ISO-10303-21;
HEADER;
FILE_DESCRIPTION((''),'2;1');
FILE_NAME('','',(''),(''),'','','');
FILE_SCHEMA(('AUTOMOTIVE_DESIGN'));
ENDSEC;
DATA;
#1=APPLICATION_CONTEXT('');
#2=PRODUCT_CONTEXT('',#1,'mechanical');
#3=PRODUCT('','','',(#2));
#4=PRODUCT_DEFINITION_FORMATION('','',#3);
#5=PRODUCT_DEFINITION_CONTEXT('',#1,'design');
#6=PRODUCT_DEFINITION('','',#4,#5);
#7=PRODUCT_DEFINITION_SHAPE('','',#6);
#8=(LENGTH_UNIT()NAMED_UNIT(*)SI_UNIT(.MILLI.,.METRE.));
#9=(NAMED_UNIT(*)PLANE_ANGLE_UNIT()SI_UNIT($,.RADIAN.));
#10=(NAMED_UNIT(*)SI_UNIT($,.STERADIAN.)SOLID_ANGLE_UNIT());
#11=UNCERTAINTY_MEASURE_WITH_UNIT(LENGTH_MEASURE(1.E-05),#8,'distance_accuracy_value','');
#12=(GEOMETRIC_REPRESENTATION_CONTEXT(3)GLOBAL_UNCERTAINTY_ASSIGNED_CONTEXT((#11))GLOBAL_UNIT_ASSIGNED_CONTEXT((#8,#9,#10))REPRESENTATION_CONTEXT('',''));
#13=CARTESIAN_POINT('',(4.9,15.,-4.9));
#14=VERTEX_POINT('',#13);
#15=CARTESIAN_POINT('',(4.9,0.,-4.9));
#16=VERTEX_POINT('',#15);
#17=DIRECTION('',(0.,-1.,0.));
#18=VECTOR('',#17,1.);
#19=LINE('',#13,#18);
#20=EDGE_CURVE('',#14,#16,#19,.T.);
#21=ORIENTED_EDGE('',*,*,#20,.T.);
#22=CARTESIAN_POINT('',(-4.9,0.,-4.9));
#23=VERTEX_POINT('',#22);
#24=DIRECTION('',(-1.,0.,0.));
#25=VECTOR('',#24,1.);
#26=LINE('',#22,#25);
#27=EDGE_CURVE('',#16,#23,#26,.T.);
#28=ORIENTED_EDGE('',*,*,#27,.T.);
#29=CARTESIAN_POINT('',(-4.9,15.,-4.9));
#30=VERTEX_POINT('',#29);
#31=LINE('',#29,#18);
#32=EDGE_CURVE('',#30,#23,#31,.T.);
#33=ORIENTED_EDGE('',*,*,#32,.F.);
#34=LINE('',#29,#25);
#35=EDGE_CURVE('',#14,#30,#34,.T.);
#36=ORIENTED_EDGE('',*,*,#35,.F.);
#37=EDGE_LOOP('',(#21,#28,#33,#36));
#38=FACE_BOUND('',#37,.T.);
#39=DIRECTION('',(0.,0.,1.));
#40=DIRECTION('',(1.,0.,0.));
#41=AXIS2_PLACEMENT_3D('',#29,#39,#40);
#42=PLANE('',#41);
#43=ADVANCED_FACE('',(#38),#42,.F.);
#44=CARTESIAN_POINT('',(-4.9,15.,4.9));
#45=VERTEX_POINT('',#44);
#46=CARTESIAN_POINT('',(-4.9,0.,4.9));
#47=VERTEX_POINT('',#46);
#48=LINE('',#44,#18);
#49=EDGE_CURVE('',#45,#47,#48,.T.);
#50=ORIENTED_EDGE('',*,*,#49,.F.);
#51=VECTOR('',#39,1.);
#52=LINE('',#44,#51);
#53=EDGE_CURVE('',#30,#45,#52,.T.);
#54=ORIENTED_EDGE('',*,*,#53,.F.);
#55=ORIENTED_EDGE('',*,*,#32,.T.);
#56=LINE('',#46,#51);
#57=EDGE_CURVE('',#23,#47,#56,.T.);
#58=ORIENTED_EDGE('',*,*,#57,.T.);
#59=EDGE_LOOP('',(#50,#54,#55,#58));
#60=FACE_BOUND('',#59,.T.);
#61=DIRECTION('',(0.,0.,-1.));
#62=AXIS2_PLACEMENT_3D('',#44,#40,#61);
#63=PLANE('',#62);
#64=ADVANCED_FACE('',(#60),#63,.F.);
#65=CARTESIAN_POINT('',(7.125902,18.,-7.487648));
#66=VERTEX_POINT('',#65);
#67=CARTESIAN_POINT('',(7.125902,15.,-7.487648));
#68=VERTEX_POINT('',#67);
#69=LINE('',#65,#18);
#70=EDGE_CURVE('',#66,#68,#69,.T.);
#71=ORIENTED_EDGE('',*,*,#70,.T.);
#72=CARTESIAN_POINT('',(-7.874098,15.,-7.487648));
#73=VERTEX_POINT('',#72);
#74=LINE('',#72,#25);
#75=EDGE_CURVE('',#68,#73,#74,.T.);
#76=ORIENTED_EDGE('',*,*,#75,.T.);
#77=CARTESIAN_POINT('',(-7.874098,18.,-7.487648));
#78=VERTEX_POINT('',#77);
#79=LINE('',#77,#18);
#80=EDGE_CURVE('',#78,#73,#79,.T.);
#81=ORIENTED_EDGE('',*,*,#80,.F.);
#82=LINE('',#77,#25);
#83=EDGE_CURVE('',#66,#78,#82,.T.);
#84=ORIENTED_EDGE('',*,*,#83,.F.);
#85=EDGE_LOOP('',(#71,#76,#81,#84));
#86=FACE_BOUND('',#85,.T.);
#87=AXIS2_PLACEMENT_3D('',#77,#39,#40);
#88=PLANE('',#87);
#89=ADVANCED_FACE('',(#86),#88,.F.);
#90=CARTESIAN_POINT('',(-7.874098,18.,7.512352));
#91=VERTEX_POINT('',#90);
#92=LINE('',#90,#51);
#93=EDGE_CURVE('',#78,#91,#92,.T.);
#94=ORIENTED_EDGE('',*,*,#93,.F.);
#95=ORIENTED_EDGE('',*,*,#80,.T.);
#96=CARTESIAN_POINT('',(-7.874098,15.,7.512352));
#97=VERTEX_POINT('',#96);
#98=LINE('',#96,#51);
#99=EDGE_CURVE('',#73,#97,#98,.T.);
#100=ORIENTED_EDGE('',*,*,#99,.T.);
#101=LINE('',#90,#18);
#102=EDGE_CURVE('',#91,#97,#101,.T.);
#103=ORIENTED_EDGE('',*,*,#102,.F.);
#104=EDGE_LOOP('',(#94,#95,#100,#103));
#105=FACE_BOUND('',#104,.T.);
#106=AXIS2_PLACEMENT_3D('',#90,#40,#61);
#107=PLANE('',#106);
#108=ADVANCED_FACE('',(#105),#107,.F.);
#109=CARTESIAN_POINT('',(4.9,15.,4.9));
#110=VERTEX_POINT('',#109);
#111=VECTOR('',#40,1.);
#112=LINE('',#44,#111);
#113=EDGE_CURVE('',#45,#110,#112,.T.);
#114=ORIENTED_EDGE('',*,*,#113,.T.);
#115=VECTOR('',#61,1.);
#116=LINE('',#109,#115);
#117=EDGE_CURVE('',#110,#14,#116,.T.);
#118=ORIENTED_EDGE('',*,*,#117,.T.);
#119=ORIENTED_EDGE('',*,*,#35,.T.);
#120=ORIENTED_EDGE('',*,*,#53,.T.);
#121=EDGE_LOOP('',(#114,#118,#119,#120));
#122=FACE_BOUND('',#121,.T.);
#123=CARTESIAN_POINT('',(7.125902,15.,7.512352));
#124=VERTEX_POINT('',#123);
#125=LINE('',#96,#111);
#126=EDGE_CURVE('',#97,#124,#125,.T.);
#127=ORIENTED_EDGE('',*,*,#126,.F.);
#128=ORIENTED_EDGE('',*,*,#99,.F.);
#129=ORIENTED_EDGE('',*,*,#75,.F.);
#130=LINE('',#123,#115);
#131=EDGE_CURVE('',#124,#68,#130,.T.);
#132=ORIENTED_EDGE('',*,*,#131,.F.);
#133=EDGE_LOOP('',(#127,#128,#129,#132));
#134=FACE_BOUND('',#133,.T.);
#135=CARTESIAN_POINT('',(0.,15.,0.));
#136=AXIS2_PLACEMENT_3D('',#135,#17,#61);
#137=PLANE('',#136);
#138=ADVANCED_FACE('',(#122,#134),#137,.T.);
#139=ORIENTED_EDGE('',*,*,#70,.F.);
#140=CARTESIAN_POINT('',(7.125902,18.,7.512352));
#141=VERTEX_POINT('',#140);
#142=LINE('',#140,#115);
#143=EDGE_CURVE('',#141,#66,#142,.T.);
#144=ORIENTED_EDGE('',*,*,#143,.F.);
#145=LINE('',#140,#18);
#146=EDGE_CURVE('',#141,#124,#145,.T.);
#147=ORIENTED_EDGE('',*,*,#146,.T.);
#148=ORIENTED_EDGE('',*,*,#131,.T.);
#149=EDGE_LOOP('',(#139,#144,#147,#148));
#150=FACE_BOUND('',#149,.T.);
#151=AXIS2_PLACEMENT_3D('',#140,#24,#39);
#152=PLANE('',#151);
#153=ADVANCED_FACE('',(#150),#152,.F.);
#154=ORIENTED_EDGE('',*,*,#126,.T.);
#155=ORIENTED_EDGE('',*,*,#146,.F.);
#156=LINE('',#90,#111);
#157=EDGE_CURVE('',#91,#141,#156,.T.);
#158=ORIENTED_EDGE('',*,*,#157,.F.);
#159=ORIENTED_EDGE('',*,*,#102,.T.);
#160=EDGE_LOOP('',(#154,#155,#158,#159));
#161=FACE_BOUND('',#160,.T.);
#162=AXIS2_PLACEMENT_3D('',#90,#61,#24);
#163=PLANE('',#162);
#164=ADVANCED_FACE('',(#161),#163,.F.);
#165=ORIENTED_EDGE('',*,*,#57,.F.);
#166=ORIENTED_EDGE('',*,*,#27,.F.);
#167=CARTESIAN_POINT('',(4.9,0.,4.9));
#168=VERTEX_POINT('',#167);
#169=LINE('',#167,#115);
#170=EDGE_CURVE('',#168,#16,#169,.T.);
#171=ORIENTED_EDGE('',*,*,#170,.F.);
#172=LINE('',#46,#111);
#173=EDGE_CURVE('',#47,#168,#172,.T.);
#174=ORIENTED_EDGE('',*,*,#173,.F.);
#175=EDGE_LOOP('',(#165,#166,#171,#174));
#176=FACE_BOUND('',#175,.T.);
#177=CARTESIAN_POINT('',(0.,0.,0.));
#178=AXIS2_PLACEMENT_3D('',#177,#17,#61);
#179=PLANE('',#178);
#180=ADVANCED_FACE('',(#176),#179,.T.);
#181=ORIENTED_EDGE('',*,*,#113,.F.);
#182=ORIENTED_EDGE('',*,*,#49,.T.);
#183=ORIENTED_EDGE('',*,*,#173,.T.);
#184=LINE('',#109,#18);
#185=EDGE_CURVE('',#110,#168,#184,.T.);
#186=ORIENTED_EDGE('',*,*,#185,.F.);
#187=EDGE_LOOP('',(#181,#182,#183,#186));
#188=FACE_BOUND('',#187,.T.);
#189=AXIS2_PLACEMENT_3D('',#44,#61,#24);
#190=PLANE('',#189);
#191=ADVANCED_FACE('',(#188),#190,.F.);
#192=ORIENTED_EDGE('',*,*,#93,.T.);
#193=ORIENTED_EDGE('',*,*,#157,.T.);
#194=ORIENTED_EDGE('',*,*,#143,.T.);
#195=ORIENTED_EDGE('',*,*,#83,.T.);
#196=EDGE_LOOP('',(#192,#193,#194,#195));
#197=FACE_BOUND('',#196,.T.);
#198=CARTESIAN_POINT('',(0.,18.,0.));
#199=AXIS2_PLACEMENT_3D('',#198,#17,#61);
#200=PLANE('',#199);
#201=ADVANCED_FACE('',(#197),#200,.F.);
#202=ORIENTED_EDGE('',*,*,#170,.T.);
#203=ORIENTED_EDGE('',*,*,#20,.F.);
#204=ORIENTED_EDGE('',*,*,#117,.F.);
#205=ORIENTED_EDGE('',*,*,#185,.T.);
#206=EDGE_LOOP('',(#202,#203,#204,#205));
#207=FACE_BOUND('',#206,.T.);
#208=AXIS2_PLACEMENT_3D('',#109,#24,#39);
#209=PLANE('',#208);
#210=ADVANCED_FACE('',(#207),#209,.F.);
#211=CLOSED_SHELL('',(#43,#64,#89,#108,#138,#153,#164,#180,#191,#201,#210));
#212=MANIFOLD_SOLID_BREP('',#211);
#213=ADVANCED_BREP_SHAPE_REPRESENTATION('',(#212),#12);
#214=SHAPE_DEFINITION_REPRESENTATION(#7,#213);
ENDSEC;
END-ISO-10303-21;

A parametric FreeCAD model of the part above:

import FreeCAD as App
import Part
import Sketcher
from FreeCAD import Vector

doc = App.newDocument("Part")
body = doc.addObject("PartDesign::Body", "Body")

sketch1 = doc.addObject("Sketcher::SketchObject", "Sketch")
body.addObject(sketch1)
sketch1.AttachmentSupport = (doc.XZ_Plane, [""])
sketch1.MapMode = "FlatFace"
sketch1.addGeometry([
    Part.LineSegment(Vector(-5, -5, 0), Vector(-5, 5, 0)),
    Part.LineSegment(Vector(-5, 5, 0), Vector(5, 5, 0)),
    Part.LineSegment(Vector(5, 5, 0), Vector(5, -5, 0)),
    Part.LineSegment(Vector(5, -5, 0), Vector(-5, -5, 0)),
], False)
sketch1.addConstraint([
    Sketcher.Constraint("Coincident", 0, 2, 1, 1),
    Sketcher.Constraint("Coincident", 1, 2, 2, 1),
    Sketcher.Constraint("Coincident", 2, 2, 3, 1),
    Sketcher.Constraint("Coincident", 3, 2, 0, 1),
    Sketcher.Constraint("Vertical", 0),
    Sketcher.Constraint("Horizontal", 1),
    Sketcher.Constraint("Vertical", 2),
    Sketcher.Constraint("Horizontal", 3),
    Sketcher.Constraint("Symmetric", 0, 2, 2, 2, -1, 1),
    Sketcher.Constraint("Equal", 3, 0),
    Sketcher.Constraint("DistanceX", 1, 1, 1, 2, 9.8),
])
pad1 = doc.addObject("PartDesign::Pad", "Pad")
body.addObject(pad1)
pad1.Profile = sketch1
pad1.Length = 15
pad1.Reversed = True

sketch2 = doc.addObject("Sketcher::SketchObject", "Sketch001")
body.addObject(sketch2)
sketch2.AttachmentSupport = (doc.XZ_Plane, [""])
sketch2.MapMode = "FlatFace"
sketch2.AttachmentOffset = App.Placement(Vector(0, 0, -15), App.Rotation())
sketch2.addGeometry([
    Part.LineSegment(Vector(-8, -7, 0), Vector(-8, 8, 0)),
    Part.LineSegment(Vector(-8, 8, 0), Vector(7, 8, 0)),
    Part.LineSegment(Vector(7, 8, 0), Vector(7, -7, 0)),
    Part.LineSegment(Vector(7, -7, 0), Vector(-8, -7, 0)),
], False)
sketch2.addConstraint([
    Sketcher.Constraint("Coincident", 0, 2, 1, 1),
    Sketcher.Constraint("Coincident", 1, 2, 2, 1),
    Sketcher.Constraint("Coincident", 2, 2, 3, 1),
    Sketcher.Constraint("Coincident", 3, 2, 0, 1),
    Sketcher.Constraint("Vertical", 0),
    Sketcher.Constraint("Horizontal", 1),
    Sketcher.Constraint("Vertical", 2),
    Sketcher.Constraint("Horizontal", 3),
    Sketcher.Constraint("Equal", 3, 0),
    Sketcher.Constraint("DistanceX", 1, 1, 1, 2, 15.0),
    Sketcher.Constraint("DistanceX", 0, 2, -1, 1, 7.874098),
    Sketcher.Constraint("DistanceY", -1, 1, 0, 2, 7.512352),
])
pad2 = doc.addObject("PartDesign::Pad", "Pad001")
body.addObject(pad2)
pad2.Profile = sketch2
pad2.Length = 3
pad2.Reversed = True

doc.recompute()
